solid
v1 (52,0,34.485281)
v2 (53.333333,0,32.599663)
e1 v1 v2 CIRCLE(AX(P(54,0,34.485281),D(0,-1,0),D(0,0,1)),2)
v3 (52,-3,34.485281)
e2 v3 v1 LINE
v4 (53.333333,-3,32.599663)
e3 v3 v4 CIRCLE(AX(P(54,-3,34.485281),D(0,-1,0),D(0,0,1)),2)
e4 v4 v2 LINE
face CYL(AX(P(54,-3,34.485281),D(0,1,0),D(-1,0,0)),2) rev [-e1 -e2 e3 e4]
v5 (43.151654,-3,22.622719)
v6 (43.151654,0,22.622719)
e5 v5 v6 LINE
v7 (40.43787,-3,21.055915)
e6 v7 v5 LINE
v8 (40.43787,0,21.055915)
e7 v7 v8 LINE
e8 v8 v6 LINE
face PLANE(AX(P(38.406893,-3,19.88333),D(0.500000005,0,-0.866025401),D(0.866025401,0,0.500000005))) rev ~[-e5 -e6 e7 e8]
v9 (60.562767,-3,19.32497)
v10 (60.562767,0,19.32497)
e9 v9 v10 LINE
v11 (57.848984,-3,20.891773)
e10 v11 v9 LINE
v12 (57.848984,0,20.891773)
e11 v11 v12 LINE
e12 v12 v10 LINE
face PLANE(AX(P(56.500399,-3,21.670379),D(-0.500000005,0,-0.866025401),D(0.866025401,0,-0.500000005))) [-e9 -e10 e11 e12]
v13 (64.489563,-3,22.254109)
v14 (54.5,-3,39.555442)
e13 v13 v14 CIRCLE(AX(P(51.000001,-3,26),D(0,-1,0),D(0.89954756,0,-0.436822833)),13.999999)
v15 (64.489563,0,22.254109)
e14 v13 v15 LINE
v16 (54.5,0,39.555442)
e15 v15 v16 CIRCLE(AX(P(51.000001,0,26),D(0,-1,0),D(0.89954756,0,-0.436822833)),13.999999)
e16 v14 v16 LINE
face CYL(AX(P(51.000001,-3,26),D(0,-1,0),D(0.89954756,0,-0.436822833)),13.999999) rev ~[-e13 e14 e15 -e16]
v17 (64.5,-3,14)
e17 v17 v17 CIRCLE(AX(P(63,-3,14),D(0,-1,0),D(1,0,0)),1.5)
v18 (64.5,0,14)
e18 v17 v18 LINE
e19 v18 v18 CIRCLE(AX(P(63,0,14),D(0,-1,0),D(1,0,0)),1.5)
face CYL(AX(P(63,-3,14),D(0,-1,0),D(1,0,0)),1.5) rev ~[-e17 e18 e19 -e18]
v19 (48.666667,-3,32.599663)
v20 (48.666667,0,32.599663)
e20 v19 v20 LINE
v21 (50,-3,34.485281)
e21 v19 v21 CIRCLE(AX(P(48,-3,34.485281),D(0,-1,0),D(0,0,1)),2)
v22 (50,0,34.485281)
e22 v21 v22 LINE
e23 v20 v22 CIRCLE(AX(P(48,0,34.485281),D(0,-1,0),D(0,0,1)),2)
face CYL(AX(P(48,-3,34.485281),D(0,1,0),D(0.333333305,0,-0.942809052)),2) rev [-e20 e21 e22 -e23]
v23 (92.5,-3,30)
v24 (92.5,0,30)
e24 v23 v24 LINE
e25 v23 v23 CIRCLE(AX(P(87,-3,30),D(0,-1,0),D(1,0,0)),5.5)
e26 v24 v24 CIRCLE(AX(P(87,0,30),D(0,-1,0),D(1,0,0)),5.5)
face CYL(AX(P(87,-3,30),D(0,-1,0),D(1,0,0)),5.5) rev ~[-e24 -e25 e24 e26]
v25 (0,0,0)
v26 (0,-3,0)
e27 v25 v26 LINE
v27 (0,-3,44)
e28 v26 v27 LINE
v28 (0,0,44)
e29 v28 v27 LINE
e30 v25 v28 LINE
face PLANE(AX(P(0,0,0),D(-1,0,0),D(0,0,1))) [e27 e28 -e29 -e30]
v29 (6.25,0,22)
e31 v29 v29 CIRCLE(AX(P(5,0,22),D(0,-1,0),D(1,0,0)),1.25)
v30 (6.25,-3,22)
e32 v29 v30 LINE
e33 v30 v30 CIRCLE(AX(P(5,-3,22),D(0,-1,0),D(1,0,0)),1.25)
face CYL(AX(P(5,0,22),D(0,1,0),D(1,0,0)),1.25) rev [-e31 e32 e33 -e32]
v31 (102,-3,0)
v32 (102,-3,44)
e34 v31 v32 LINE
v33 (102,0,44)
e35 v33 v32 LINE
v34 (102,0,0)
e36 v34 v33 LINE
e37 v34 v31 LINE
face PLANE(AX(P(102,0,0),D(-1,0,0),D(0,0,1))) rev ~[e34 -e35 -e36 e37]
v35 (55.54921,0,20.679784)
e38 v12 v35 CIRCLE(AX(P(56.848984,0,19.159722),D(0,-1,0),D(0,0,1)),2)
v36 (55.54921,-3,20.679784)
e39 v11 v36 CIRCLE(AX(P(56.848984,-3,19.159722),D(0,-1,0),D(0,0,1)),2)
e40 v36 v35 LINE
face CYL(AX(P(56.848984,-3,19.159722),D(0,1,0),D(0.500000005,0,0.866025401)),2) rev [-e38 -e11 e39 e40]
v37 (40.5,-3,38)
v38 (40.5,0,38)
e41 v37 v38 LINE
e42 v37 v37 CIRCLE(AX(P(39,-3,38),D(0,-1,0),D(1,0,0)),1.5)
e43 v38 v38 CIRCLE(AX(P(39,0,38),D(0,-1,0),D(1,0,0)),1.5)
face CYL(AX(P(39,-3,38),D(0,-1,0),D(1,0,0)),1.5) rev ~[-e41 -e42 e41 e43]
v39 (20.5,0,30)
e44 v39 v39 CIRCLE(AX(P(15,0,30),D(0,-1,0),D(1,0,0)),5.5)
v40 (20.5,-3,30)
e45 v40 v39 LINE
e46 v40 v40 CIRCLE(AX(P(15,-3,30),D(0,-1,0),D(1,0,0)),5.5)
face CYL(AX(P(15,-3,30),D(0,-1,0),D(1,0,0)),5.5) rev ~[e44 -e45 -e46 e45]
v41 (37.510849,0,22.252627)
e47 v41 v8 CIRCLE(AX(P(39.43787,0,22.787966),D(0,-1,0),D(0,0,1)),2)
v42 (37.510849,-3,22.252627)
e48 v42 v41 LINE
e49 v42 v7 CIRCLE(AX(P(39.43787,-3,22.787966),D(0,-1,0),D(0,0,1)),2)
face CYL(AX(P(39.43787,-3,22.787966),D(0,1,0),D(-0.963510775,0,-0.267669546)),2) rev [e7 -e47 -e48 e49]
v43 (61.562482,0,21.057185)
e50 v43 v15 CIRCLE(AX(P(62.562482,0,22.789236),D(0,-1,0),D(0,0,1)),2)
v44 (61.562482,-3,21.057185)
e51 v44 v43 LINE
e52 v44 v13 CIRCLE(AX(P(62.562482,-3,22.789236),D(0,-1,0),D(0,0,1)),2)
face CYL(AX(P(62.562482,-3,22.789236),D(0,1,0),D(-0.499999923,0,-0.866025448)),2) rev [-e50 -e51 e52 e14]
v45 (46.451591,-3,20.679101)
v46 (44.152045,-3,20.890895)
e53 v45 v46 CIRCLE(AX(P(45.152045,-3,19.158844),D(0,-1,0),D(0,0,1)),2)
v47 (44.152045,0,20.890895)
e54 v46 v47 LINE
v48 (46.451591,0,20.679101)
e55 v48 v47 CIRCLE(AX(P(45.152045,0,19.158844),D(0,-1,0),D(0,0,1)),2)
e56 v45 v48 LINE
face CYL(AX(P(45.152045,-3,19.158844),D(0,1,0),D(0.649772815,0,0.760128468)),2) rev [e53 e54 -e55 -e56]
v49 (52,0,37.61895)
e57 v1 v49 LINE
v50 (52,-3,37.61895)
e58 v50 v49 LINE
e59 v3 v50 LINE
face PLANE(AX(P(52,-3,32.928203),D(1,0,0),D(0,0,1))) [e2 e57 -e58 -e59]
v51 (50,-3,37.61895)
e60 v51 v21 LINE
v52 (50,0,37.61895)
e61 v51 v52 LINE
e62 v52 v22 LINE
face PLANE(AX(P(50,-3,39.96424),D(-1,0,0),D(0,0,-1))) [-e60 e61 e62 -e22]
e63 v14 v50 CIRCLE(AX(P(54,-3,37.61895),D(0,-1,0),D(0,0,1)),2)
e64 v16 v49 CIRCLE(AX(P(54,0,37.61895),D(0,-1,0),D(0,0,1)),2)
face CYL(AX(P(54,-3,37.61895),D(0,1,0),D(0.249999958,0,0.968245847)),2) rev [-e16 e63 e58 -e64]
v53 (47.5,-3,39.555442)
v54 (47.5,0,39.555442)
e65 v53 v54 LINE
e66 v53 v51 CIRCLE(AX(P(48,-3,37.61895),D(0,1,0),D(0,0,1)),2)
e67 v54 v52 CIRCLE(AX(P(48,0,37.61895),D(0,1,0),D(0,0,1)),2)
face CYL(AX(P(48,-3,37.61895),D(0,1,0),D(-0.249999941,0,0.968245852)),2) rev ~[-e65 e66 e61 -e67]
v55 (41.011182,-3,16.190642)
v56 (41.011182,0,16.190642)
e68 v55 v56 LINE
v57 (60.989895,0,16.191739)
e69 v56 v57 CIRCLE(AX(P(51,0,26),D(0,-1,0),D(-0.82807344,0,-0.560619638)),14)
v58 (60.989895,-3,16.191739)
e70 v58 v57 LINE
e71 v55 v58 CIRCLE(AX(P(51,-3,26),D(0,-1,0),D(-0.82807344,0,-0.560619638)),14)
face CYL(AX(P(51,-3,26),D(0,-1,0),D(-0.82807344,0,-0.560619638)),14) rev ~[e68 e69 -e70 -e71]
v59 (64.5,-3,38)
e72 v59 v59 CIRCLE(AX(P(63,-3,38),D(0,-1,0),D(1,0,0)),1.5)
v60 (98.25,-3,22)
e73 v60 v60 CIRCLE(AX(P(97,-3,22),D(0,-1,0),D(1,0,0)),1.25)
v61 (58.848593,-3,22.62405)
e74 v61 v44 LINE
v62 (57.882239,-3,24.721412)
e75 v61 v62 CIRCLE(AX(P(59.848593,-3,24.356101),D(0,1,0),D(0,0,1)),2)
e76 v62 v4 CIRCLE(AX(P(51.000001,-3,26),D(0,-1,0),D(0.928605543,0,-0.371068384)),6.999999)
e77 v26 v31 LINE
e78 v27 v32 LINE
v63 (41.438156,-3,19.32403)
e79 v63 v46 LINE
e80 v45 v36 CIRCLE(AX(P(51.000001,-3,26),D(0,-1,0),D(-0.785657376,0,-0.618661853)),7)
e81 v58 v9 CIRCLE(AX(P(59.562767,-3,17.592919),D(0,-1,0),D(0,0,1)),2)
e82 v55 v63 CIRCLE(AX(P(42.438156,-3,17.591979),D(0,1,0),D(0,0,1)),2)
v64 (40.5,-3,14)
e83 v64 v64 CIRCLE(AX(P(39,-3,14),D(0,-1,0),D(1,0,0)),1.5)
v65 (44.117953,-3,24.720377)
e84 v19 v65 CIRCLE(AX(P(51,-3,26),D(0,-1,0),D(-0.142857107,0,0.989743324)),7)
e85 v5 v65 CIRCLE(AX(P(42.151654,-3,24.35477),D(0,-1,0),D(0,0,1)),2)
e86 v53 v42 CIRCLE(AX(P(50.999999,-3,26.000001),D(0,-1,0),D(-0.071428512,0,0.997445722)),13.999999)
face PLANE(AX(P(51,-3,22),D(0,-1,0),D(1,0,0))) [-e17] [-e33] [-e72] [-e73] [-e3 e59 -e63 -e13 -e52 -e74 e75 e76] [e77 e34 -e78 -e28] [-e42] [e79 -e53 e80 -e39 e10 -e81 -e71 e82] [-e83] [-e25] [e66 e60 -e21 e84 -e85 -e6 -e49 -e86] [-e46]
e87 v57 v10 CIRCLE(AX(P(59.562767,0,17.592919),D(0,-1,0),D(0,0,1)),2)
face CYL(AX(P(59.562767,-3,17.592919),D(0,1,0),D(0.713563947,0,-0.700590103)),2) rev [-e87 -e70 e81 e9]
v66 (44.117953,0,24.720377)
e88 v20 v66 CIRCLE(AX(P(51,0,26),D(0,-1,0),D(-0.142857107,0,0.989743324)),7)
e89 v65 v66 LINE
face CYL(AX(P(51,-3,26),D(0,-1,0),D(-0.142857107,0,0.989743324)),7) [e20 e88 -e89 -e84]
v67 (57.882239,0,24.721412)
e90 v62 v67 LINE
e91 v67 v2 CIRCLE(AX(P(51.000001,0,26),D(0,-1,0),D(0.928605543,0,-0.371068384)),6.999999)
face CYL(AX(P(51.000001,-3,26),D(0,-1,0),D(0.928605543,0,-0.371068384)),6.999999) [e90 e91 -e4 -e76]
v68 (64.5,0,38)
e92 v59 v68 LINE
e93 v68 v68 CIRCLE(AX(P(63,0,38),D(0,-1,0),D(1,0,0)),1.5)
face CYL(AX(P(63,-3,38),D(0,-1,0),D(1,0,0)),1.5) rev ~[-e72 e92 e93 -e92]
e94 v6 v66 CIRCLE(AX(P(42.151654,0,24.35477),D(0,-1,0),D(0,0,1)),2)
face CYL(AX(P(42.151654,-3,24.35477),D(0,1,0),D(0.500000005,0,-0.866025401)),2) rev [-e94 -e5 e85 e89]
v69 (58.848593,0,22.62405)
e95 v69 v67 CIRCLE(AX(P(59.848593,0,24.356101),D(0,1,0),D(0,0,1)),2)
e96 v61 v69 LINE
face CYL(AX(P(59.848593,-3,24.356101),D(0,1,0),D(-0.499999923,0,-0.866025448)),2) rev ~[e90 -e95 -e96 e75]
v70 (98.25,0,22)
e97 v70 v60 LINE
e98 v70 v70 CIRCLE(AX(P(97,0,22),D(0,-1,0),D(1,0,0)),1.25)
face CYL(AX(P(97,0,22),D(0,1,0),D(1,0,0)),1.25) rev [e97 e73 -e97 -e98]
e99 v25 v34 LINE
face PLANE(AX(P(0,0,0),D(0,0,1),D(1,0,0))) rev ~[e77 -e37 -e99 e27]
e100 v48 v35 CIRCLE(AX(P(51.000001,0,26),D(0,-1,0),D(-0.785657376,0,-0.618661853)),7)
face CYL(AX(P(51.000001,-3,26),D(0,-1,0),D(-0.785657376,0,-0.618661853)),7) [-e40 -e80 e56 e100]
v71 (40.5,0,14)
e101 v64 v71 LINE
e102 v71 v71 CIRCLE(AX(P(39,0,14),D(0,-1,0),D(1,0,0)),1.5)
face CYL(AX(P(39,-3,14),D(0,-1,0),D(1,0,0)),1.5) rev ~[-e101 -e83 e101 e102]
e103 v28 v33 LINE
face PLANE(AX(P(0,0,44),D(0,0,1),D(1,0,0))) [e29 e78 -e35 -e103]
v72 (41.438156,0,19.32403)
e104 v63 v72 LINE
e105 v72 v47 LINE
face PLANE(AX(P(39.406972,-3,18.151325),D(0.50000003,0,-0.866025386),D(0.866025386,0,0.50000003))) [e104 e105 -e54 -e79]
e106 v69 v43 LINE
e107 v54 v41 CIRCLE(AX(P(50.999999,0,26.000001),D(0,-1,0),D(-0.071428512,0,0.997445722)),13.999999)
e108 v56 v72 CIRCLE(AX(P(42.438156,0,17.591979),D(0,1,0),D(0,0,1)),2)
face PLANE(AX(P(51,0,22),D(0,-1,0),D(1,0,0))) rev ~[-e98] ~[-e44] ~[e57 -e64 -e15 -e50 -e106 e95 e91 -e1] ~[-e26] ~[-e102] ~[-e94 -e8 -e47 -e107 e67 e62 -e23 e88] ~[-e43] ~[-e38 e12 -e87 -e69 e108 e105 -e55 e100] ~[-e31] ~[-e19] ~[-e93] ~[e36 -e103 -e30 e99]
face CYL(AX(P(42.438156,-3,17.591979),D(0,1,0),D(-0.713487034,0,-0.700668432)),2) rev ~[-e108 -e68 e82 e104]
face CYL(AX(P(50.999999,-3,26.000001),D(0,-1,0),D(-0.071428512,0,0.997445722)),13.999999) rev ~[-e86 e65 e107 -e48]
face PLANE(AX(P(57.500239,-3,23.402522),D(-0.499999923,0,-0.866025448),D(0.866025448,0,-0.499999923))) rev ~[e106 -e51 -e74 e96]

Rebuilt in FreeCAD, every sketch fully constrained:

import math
import FreeCAD as App
import Part
import Sketcher

V = App.Vector
Q = App.Units.Quantity


def edges_at(feature, points):
    """Names of the edges that pass closest to the given points."""
    edges = feature.Shape.Edges
    near = lambda p: min(range(len(edges)), key=lambda i: edges[i].distToShape(Part.Vertex(*p))[0])
    return sorted({f"Edge{near(p) + 1}" for p in points})

doc = App.newDocument("Part")
params = doc.addObject("Spreadsheet::Sheet", "Params")
for row, (alias, value) in enumerate([
    ("sketch1_diameter", "2.5 mm"),
    ("sketch1_width", "102 mm"),
    ("sketch1_height", "44 mm"),
    ("pad1_length", "3 mm"),
    ("sketch2_diameter", "11 mm"),
    ("sketch3_diameter", "3 mm"),
    ("sketch4_radius", "13.999999 mm"),
    ("sketch4_radius2", "7 mm"),
    ("fillet_radius", "2 mm"),
], start=1):
    params.set(f"A{row}", alias)
    params.set(f"B{row}", "=" + value)
    params.setAlias(f"B{row}", alias)

body = doc.addObject("PartDesign::Body", "Body")

sketch1 = body.newObject("Sketcher::SketchObject", "Sketch")
sketch1.AttachmentSupport = (doc.getObject("XZ_Plane"), [""])
sketch1.MapMode = "FlatFace"
sketch1.addGeometry([
    Part.LineSegment(V(0, 44, 0), V(0, 0, 0)),
    Part.LineSegment(V(0, 0, 0), V(102, 0, 0)),
    Part.LineSegment(V(102, 0, 0), V(102, 44, 0)),
    Part.LineSegment(V(102, 44, 0), V(0, 44, 0)),
    Part.Circle(V(5, 22, 0), V(0, 0, 1), 1.2),
    Part.Circle(V(97, 22, 0), V(0, 0, 1), 1.2),
], False)
sketch1.addConstraint([
    Sketcher.Constraint("Coincident", 0, 2, 1, 1),
    Sketcher.Constraint("Coincident", 1, 2, 2, 1),
    Sketcher.Constraint("Coincident", 2, 2, 3, 1),
    Sketcher.Constraint("Coincident", 3, 2, 0, 1),
    Sketcher.Constraint("Vertical", 0),
    Sketcher.Constraint("Horizontal", 1),
    Sketcher.Constraint("Vertical", 2),
    Sketcher.Constraint("Horizontal", 3),
    Sketcher.Constraint("Coincident", 0, 2, -1, 1),
    Sketcher.Constraint("Equal", 4, 5),
    Sketcher.Constraint("Horizontal", 4, 3, 5, 3),
    Sketcher.Constraint("Diameter", 4, 2.5),
    Sketcher.Constraint("DistanceX", 1, 1, 1, 2, 102.0),
    Sketcher.Constraint("DistanceY", 0, 2, 0, 1, 44.0),
    Sketcher.Constraint("DistanceX", -1, 1, 4, 3, 5.0),
    Sketcher.Constraint("DistanceY", -1, 1, 4, 3, 22.0),
    Sketcher.Constraint("DistanceX", -1, 1, 5, 3, 97.0),
])
sketch1.setExpression("Constraints[11]", "Params.sketch1_diameter")
sketch1.setExpression("Constraints[12]", "Params.sketch1_width")
sketch1.setExpression("Constraints[13]", "Params.sketch1_height")
pad1 = body.newObject("PartDesign::Pad", "Pad")
pad1.Profile = sketch1
pad1.setExpression("Length", "Params.pad1_length")

sketch2 = body.newObject("Sketcher::SketchObject", "Sketch001")
sketch2.AttachmentSupport = (doc.getObject("XZ_Plane"), [""])
sketch2.MapMode = "FlatFace"
sketch2.AttachmentOffset = App.Placement(V(0, 0, 3), App.Rotation())
sketch2.addGeometry([
    Part.Circle(V(15, 30, 0), V(0, 0, 1), 6),
    Part.Circle(V(87, 30, 0), V(0, 0, 1), 6),
], False)
sketch2.addConstraint([
    Sketcher.Constraint("Equal", 0, 1),
    Sketcher.Constraint("Horizontal", 0, 3, 1, 3),
    Sketcher.Constraint("Diameter", 0, 11.0),
    Sketcher.Constraint("DistanceX", -1, 1, 0, 3, 15.0),
    Sketcher.Constraint("DistanceY", -1, 1, 0, 3, 30.0),
    Sketcher.Constraint("DistanceX", -1, 1, 1, 3, 87.0),
])
sketch2.setExpression("Constraints[2]", "Params.sketch2_diameter")
pocket1 = body.newObject("PartDesign::Pocket", "Pocket")
pocket1.Profile = sketch2
pocket1.Type = "ThroughAll"

sketch3 = body.newObject("Sketcher::SketchObject", "Sketch002")
sketch3.AttachmentSupport = (doc.getObject("XZ_Plane"), [""])
sketch3.MapMode = "FlatFace"
sketch3.AttachmentOffset = App.Placement(V(0, 0, 3), App.Rotation())
sketch3.addGeometry([
    Part.Circle(V(39, 38, 0), V(0, 0, 1), 1.5),
    Part.Circle(V(63, 38, 0), V(0, 0, 1), 1.5),
    Part.Circle(V(39, 14, 0), V(0, 0, 1), 1.5),
    Part.Circle(V(63, 14, 0), V(0, 0, 1), 1.5),
], False)
sketch3.addConstraint([
    Sketcher.Constraint("Equal", 0, 1),
    Sketcher.Constraint("Equal", 1, 2),
    Sketcher.Constraint("Equal", 2, 3),
    Sketcher.Constraint("Horizontal", 0, 3, 1, 3),
    Sketcher.Constraint("Horizontal", 2, 3, 3, 3),
    Sketcher.Constraint("Vertical", 0, 3, 2, 3),
    Sketcher.Constraint("Vertical", 1, 3, 3, 3),
    Sketcher.Constraint("Diameter", 0, 3.0),
    Sketcher.Constraint("DistanceX", -1, 1, 0, 3, 39.0),
    Sketcher.Constraint("DistanceY", -1, 1, 0, 3, 38.0),
    Sketcher.Constraint("DistanceX", -1, 1, 1, 3, 63.0),
    Sketcher.Constraint("DistanceY", -1, 1, 2, 3, 14.0),
])
sketch3.setExpression("Constraints[7]", "Params.sketch3_diameter")
pocket2 = body.newObject("PartDesign::Pocket", "Pocket001")
pocket2.Profile = sketch3
pocket2.Type = "ThroughAll"

sketch4 = body.newObject("Sketcher::SketchObject", "Sketch003")
sketch4.AttachmentSupport = (doc.getObject("XZ_Plane"), [""])
sketch4.MapMode = "FlatFace"
sketch4.AttachmentOffset = App.Placement(V(0, 0, 3), App.Rotation())
sketch4.addGeometry([
    Part.LineSegment(V(50, 33, 0), V(50, 40, 0)),
    Part.ArcOfCircle(Part.Circle(V(51, 26, 0), V(0, 0, 1), 14), math.radians(94), math.radians(206)),
    Part.LineSegment(V(38, 20, 0), V(45, 23, 0)),
    Part.ArcOfCircle(Part.Circle(V(51, 26, 0), V(0, 0, 1), 7), math.radians(98), math.radians(202)),
    Part.LineSegment(V(46, 22, 0), V(39, 18, 0)),
    Part.ArcOfCircle(Part.Circle(V(51, 26, 0), V(0, 0, 1), 14), math.radians(-146), math.radians(-34)),
    Part.LineSegment(V(63, 18, 0), V(57, 22, 0)),
    Part.ArcOfCircle(Part.Circle(V(51, 26, 0), V(0, 0, 1), 7), math.radians(-142), math.radians(-38)),
    Part.LineSegment(V(58, 23, 0), V(64, 20, 0)),
    Part.ArcOfCircle(Part.Circle(V(51, 26, 0), V(0, 0, 1), 14), math.radians(-26), math.radians(86)),
    Part.LineSegment(V(52, 40, 0), V(52, 33, 0)),
    Part.ArcOfCircle(Part.Circle(V(51, 26, 0), V(0, 0, 1), 7), math.radians(-22), math.radians(82)),
], False)
sketch4.addConstraint([
    Sketcher.Constraint("Coincident", 0, 2, 1, 1),
    Sketcher.Constraint("Coincident", 1, 2, 2, 1),
    Sketcher.Constraint("Coincident", 2, 2, 3, 2),
    Sketcher.Constraint("Coincident", 3, 1, 0, 1),
    Sketcher.Constraint("Coincident", 4, 2, 5, 1),
    Sketcher.Constraint("Coincident", 5, 2, 6, 1),
    Sketcher.Constraint("Coincident", 6, 2, 7, 2),
    Sketcher.Constraint("Coincident", 7, 1, 4, 1),
    Sketcher.Constraint("Coincident", 8, 2, 9, 1),
    Sketcher.Constraint("Coincident", 9, 2, 10, 1),
    Sketcher.Constraint("Coincident", 10, 2, 11, 2),
    Sketcher.Constraint("Coincident", 11, 1, 8, 1),
    Sketcher.Constraint("Vertical", 0),
    Sketcher.Constraint("Vertical", 10),
    Sketcher.Constraint("Coincident", 3, 3, 1, 3),
    Sketcher.Constraint("Coincident", 5, 3, 1, 3),
    Sketcher.Constraint("Coincident", 7, 3, 1, 3),
    Sketcher.Constraint("Coincident", 9, 3, 1, 3),
    Sketcher.Constraint("Coincident", 11, 3, 1, 3),
    Sketcher.Constraint("Equal", 1, 5),
    Sketcher.Constraint("Equal", 3, 7),
    Sketcher.Constraint("Equal", 5, 9),
    Sketcher.Constraint("Equal", 7, 11),
    Sketcher.Constraint("Parallel", 2, 4),
    Sketcher.Constraint("Parallel", 6, 8),
    Sketcher.Constraint("Horizontal", 0, 2, 9, 2),
    Sketcher.Constraint("Equal", 2, 6),
    Sketcher.Constraint("Equal", 4, 8),
    Sketcher.Constraint("Radius", 1, 13.999999),
    Sketcher.Constraint("Radius", 3, 7.0),
    Sketcher.Constraint("Angle", 2, Q("30 deg")),
    Sketcher.Constraint("Angle", 6, Q("150 deg")),
    Sketcher.Constraint("DistanceX", -1, 1, 1, 3, 50.999999),
    Sketcher.Constraint("DistanceY", -1, 1, 1, 3, 26.000001),
    Sketcher.Constraint("DistanceX", -1, 1, 0, 2, 50.0),
    Sketcher.Constraint("DistanceY", 4, 2, 2, 2, 5.25),
    Sketcher.Constraint("DistanceX", -1, 1, 6, 2, 56.500399),
])
sketch4.setExpression("Constraints[28]", "Params.sketch4_radius")
sketch4.setExpression("Constraints[29]", "Params.sketch4_radius2")
pocket3 = body.newObject("PartDesign::Pocket", "Pocket002")
pocket3.Profile = sketch4
pocket3.Type = "ThroughAll"
doc.recompute()

fillet = body.newObject("PartDesign::Fillet", "Fillet")
fillet.Base = (pocket3, edges_at(pocket3, [
    (44.5, -1.5, 23.401),
    (50, -1.5, 32.928),
    (63.594, -1.5, 19.884),
    (56.5, -1.5, 21.67),
    (52, -1.5, 39.964),
    (39.407, -1.5, 18.151),
    (62.594, -1.5, 18.152),
    (45.5, -1.5, 21.669),
    (50, -1.5, 39.964),
    (38.407, -1.5, 19.883),
    (52, -1.5, 32.928),
    (57.5, -1.5, 23.403),
]))
fillet.setExpression("Radius", "Params.fillet_radius")

doc.recompute()
